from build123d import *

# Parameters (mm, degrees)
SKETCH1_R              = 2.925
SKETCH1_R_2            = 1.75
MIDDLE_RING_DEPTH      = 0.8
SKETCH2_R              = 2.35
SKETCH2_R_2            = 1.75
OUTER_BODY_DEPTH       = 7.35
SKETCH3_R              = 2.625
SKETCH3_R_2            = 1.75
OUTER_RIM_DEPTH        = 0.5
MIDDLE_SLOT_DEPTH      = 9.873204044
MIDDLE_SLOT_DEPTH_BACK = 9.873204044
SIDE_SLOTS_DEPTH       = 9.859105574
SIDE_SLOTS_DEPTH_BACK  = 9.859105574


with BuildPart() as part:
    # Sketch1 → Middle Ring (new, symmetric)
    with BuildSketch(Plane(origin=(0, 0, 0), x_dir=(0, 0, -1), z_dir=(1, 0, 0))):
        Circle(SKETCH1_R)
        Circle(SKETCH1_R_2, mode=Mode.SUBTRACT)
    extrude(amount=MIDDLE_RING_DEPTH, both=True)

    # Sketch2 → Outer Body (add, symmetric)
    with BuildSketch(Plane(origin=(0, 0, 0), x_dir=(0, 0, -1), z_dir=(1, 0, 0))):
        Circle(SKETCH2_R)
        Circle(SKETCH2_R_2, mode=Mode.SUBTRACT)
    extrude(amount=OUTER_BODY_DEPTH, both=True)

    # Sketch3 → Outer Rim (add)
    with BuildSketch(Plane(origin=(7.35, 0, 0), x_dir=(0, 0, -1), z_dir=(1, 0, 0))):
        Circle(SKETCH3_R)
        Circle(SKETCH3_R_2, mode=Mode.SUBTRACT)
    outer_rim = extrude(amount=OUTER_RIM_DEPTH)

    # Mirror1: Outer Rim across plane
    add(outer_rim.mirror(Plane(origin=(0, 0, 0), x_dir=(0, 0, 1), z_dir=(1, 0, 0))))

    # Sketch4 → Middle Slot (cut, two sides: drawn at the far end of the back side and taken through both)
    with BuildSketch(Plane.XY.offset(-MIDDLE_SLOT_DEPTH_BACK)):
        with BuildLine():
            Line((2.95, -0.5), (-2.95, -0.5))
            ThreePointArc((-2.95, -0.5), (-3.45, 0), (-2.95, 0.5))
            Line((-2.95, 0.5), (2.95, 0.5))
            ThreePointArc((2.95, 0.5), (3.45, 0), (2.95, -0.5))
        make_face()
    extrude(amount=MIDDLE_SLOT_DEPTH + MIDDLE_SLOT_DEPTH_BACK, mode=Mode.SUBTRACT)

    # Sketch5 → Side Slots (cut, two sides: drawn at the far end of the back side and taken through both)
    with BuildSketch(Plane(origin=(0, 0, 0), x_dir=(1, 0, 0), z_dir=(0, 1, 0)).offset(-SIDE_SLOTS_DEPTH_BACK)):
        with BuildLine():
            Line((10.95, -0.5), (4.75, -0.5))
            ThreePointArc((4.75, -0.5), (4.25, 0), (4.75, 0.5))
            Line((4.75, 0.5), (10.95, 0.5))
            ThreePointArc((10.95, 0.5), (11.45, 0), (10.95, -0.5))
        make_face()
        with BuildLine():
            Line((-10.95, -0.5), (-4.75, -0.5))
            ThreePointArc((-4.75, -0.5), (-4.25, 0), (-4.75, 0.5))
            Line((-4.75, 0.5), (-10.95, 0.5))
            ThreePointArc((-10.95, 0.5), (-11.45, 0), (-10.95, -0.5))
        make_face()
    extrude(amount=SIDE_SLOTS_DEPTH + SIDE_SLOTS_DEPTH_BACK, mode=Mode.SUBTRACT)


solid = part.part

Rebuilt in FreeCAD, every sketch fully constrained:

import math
import FreeCAD as App
import Part
import Sketcher
from FreeCAD import Vector
Q = App.Units.Quantity

doc = App.newDocument("Part")
params = doc.addObject("Spreadsheet::Sheet", "Params")
for row, (alias, value) in enumerate([
    ("sketch1_diameter", "3.5 mm"),
    ("sketch1_diameter2", "5.85 mm"),
    ("pad1_length", "1.6 mm"),
    ("sketch2_diameter", "4.7 mm"),
    ("sketch2_diameter2", "3.5 mm"),
    ("pad2_length", "14.7 mm"),
    ("sketch3_diameter", "3.5 mm"),
    ("sketch3_diameter2", "5.25 mm"),
    ("pad3_length", "0.5 mm"),
    ("sketch4_radius", "0.5 mm"),
    ("sketch4_width", "5.9 mm"),
    ("sketch5_radius", "0.5 mm"),
    ("sketch5_width", "6.2 mm"),
], start=1):
    params.set(f"A{row}", alias)
    params.set(f"B{row}", "=" + value)
    params.setAlias(f"B{row}", alias)

body = doc.addObject("PartDesign::Body", "Body")

# Sketch on YZ plane
sketch1 = body.newObject("Sketcher::SketchObject", "Sketch")
sketch1.AttachmentSupport = (doc.getObject("YZ_Plane"), [""])
sketch1.MapMode = "FlatFace"
sketch1.addGeometry(Part.Circle(Vector(0, 0, 0), Vector(0, 0, 1), 2.9), False)
sketch1.addGeometry(Part.Circle(Vector(0, 0, 0), Vector(0, 0, 1), 1.8), False)
sketch1.addConstraint(Sketcher.Constraint("Coincident", 0, 3, -1, 1))
sketch1.addConstraint(Sketcher.Constraint("Coincident", 1, 3, -1, 1))
sketch1.addConstraint(Sketcher.Constraint("Diameter", 1, Q("3.5 mm")))
sketch1.addConstraint(Sketcher.Constraint("Diameter", 0, Q("5.85 mm")))
sketch1.setExpression("Constraints[2]", "Params.sketch1_diameter")
sketch1.setExpression("Constraints[3]", "Params.sketch1_diameter2")
pad1 = body.newObject("PartDesign::Pad", "Pad")
pad1.Profile = sketch1
pad1.setExpression("Length", "Params.pad1_length")
pad1.Midplane = True

# Sketch on YZ plane
sketch2 = body.newObject("Sketcher::SketchObject", "Sketch001")
sketch2.AttachmentSupport = (doc.getObject("YZ_Plane"), [""])
sketch2.MapMode = "FlatFace"
sketch2.addGeometry(Part.Circle(Vector(0, 0, 0), Vector(0, 0, 1), 2.4), False)
sketch2.addGeometry(Part.Circle(Vector(0, 0, 0), Vector(0, 0, 1), 1.8), False)
sketch2.addConstraint(Sketcher.Constraint("Coincident", 0, 3, -1, 1))
sketch2.addConstraint(Sketcher.Constraint("Coincident", 1, 3, -1, 1))
sketch2.addConstraint(Sketcher.Constraint("Diameter", 0, Q("4.7 mm")))
sketch2.addConstraint(Sketcher.Constraint("Diameter", 1, Q("3.5 mm")))
sketch2.setExpression("Constraints[2]", "Params.sketch2_diameter")
sketch2.setExpression("Constraints[3]", "Params.sketch2_diameter2")
pad2 = body.newObject("PartDesign::Pad", "Pad001")
pad2.Profile = sketch2
pad2.setExpression("Length", "Params.pad2_length")
pad2.Midplane = True

# Sketch on YZ plane
sketch3 = body.newObject("Sketcher::SketchObject", "Sketch002")
sketch3.AttachmentSupport = (doc.getObject("YZ_Plane"), [""])
sketch3.MapMode = "FlatFace"
sketch3.AttachmentOffset = App.Placement(Vector(0, 0, 7.35), App.Rotation())
sketch3.addGeometry(Part.Circle(Vector(0, 0, 0), Vector(0, 0, 1), 2.6), False)
sketch3.addGeometry(Part.Circle(Vector(0, 0, 0), Vector(0, 0, 1), 1.8), False)
sketch3.addConstraint(Sketcher.Constraint("Coincident", 0, 3, -1, 1))
sketch3.addConstraint(Sketcher.Constraint("Coincident", 1, 3, -1, 1))
sketch3.addConstraint(Sketcher.Constraint("Diameter", 1, Q("3.5 mm")))
sketch3.addConstraint(Sketcher.Constraint("Diameter", 0, Q("5.25 mm")))
sketch3.setExpression("Constraints[2]", "Params.sketch3_diameter")
sketch3.setExpression("Constraints[3]", "Params.sketch3_diameter2")
pad3 = body.newObject("PartDesign::Pad", "Pad002")
pad3.Profile = sketch3
pad3.setExpression("Length", "Params.pad3_length")
doc.recompute()

mirrored = body.newObject("PartDesign::Mirrored", "Mirrored")
mirrored.Originals = [pad3]
mirrored.MirrorPlane = (doc.getObject("YZ_Plane"), [""])
body.Tip = mirrored

# Sketch on XY plane
sketch4 = body.newObject("Sketcher::SketchObject", "Sketch003")
sketch4.AttachmentSupport = (doc.getObject("XY_Plane"), [""])
sketch4.MapMode = "FlatFace"
sketch4.addGeometry(Part.LineSegment(Vector(-3, -0.5, 0), Vector(3, -0.5, 0)), False)
sketch4.addGeometry(Part.ArcOfCircle(Part.Circle(Vector(3, 0, 0), Vector(0, 0, 1), 0.5), math.radians(-90), math.radians(90)), False)
sketch4.addGeometry(Part.LineSegment(Vector(3, 0.5, 0), Vector(-3, 0.5, 0)), False)
sketch4.addGeometry(Part.ArcOfCircle(Part.Circle(Vector(-3, 0, 0), Vector(0, 0, 1), 0.5), math.radians(90), math.radians(270)), False)
sketch4.addConstraint(Sketcher.Constraint("Tangent", 0, 2, 1, 1))
sketch4.addConstraint(Sketcher.Constraint("Tangent", 1, 2, 2, 1))
sketch4.addConstraint(Sketcher.Constraint("Tangent", 2, 2, 3, 1))
sketch4.addConstraint(Sketcher.Constraint("Tangent", 3, 2, 0, 1))
sketch4.addConstraint(Sketcher.Constraint("Horizontal", 0))
sketch4.addConstraint(Sketcher.Constraint("Horizontal", 2))
sketch4.addConstraint(Sketcher.Constraint("Symmetric", 1, 3, 3, 3, -1, 1))
sketch4.addConstraint(Sketcher.Constraint("Radius", 1, Q("0.5 mm")))
sketch4.addConstraint(Sketcher.Constraint("DistanceX", 0, 1, 0, 2, Q("5.9 mm")))
sketch4.setExpression("Constraints[7]", "Params.sketch4_radius")
sketch4.setExpression("Constraints[8]", "Params.sketch4_width")
pocket1 = body.newObject("PartDesign::Pocket", "Pocket")
pocket1.Profile = sketch4
pocket1.Type = "ThroughAll"
pocket1.Midplane = True

# Sketch on XZ plane
sketch5 = body.newObject("Sketcher::SketchObject", "Sketch004")
sketch5.AttachmentSupport = (doc.getObject("XZ_Plane"), [""])
sketch5.MapMode = "FlatFace"
sketch5.addGeometry(Part.LineSegment(Vector(4.8, 0.5, 0), Vector(10.9, 0.5, 0)), False)
sketch5.addGeometry(Part.ArcOfCircle(Part.Circle(Vector(10.9, 0, 0), Vector(0, 0, 1), 0.5), math.radians(-90), math.radians(90)), False)
sketch5.addGeometry(Part.LineSegment(Vector(10.9, -0.5, 0), Vector(4.8, -0.5, 0)), False)
sketch5.addGeometry(Part.ArcOfCircle(Part.Circle(Vector(4.8, 0, 0), Vector(0, 0, 1), 0.5), math.radians(90), math.radians(270)), False)
sketch5.addGeometry(Part.LineSegment(Vector(-10.9, 0.5, 0), Vector(-4.8, 0.5, 0)), False)
sketch5.addGeometry(Part.ArcOfCircle(Part.Circle(Vector(-4.8, 0, 0), Vector(0, 0, 1), 0.5), math.radians(-90), math.radians(90)), False)
sketch5.addGeometry(Part.LineSegment(Vector(-4.8, -0.5, 0), Vector(-10.9, -0.5, 0)), False)
sketch5.addGeometry(Part.ArcOfCircle(Part.Circle(Vector(-10.9, 0, 0), Vector(0, 0, 1), 0.5), math.radians(90), math.radians(270)), False)
sketch5.addConstraint(Sketcher.Constraint("Tangent", 0, 2, 1, 2))
sketch5.addConstraint(Sketcher.Constraint("Tangent", 1, 1, 2, 1))
sketch5.addConstraint(Sketcher.Constraint("Tangent", 2, 2, 3, 2))
sketch5.addConstraint(Sketcher.Constraint("Tangent", 3, 1, 0, 1))
sketch5.addConstraint(Sketcher.Constraint("Tangent", 4, 2, 5, 2))
sketch5.addConstraint(Sketcher.Constraint("Tangent", 5, 1, 6, 1))
sketch5.addConstraint(Sketcher.Constraint("Tangent", 6, 2, 7, 2))
sketch5.addConstraint(Sketcher.Constraint("Tangent", 7, 1, 4, 1))
sketch5.addConstraint(Sketcher.Constraint("Horizontal", 0))
sketch5.addConstraint(Sketcher.Constraint("Horizontal", 2))
sketch5.addConstraint(Sketcher.Constraint("Horizontal", 4))
sketch5.addConstraint(Sketcher.Constraint("Horizontal", 6))
sketch5.addConstraint(Sketcher.Constraint("Equal", 3, 5))
sketch5.addConstraint(Sketcher.Constraint("Symmetric", 3, 3, 5, 3, -1, 1))
sketch5.addConstraint(Sketcher.Constraint("Symmetric", 1, 3, 7, 3, -2))
sketch5.addConstraint(Sketcher.Constraint("Radius", 1, Q("0.5 mm")))
sketch5.addConstraint(Sketcher.Constraint("DistanceX", 0, 1, 0, 2, Q("6.2 mm")))
sketch5.addConstraint(Sketcher.Constraint("DistanceX", 5, 3, 3, 3, Q("9.5 mm")))
sketch5.setExpression("Constraints[15]", "Params.sketch5_radius")
sketch5.setExpression("Constraints[16]", "Params.sketch5_width")
pocket2 = body.newObject("PartDesign::Pocket", "Pocket001")
pocket2.Profile = sketch5
pocket2.Type = "ThroughAll"
pocket2.Midplane = True

doc.recompute()
